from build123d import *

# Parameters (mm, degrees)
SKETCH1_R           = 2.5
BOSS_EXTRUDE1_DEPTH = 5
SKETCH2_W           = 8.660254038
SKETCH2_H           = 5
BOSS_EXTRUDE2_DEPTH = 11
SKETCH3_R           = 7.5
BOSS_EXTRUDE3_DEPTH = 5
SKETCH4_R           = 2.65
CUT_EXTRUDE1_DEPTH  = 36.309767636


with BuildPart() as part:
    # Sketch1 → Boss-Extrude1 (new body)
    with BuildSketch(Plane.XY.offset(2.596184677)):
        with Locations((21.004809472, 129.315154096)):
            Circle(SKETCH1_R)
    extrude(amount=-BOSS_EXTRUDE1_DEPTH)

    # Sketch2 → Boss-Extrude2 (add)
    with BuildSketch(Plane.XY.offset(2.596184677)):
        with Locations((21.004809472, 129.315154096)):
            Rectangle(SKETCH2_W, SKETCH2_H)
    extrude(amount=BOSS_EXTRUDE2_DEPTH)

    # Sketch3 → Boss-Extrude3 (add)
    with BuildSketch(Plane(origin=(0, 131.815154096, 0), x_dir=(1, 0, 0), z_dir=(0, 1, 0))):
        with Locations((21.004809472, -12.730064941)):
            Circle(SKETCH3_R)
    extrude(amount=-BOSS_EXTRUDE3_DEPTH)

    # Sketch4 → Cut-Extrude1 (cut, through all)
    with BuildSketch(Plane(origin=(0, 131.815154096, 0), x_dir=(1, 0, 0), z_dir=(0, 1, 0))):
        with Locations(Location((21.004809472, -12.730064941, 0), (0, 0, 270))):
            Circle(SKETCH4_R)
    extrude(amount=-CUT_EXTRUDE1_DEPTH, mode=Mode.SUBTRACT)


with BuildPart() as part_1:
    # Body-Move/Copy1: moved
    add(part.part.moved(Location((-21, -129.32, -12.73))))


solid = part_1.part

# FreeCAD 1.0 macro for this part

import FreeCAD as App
import Part
import Sketcher
from FreeCAD import Vector
Q = App.Units.Quantity


def add_polygon(sketch, points):
    """Adds a closed chain of lines whose ends are joined by coincident constraints."""
    first, n = sketch.GeometryCount, len(points)
    for a, b in zip(points, points[1:] + points[:1]):
        sketch.addGeometry(Part.LineSegment(App.Vector(*a, 0), App.Vector(*b, 0)), False)
    for i in range(n):
        sketch.addConstraint(Sketcher.Constraint("Coincident", first + i, 2, first + (i + 1) % n, 1))

doc = App.newDocument("Part")
body = doc.addObject("PartDesign::Body", "Body")

# Sketch on XY plane
sketch1 = body.newObject("Sketcher::SketchObject", "Sketch")
sketch1.AttachmentSupport = (doc.getObject("XY_Plane"), [""])
sketch1.MapMode = "FlatFace"
sketch1.AttachmentOffset = App.Placement(Vector(0, 0, 2.596185), App.Rotation())
sketch1.addGeometry(Part.Circle(Vector(21, 129.3, 0), Vector(0, 0, 1), 2.5), False)
sketch1.addConstraint([
    Sketcher.Constraint("Diameter", 0, Q("5 mm")),
    Sketcher.Constraint("DistanceX", -1, 1, 0, 3, Q("21.004809 mm")),
    Sketcher.Constraint("DistanceY", -1, 1, 0, 3, Q("129.315154 mm")),
])
pad1 = body.newObject("PartDesign::Pad", "Pad")
pad1.Profile = sketch1
pad1.Length = 5
pad1.Reversed = True

# Sketch on XY plane
sketch2 = body.newObject("Sketcher::SketchObject", "Sketch001")
sketch2.AttachmentSupport = (doc.getObject("XY_Plane"), [""])
sketch2.MapMode = "FlatFace"
sketch2.AttachmentOffset = App.Placement(Vector(0, 0, 2.596185), App.Rotation())
add_polygon(sketch2, [(16.7, 131.8), (16.7, 126.8), (25.3, 126.8), (25.3, 131.8)])  # lines 0-3
sketch2.addConstraint([
    Sketcher.Constraint("Vertical", 0),
    Sketcher.Constraint("Horizontal", 1),
    Sketcher.Constraint("Vertical", 2),
    Sketcher.Constraint("Horizontal", 3),
    Sketcher.Constraint("DistanceY", 0, 2, 0, 1, Q("5 mm")),
    Sketcher.Constraint("DistanceX", 1, 1, 1, 2, Q("8.660254 mm")),
    Sketcher.Constraint("DistanceX", -1, 1, 0, 2, Q("16.674682 mm")),
    Sketcher.Constraint("DistanceY", -1, 1, 0, 2, Q("126.815154 mm")),
])
pad2 = body.newObject("PartDesign::Pad", "Pad001")
pad2.Profile = sketch2
pad2.Length = 11

# Sketch on XZ plane
sketch3 = body.newObject("Sketcher::SketchObject", "Sketch002")
sketch3.AttachmentSupport = (doc.getObject("XZ_Plane"), [""])
sketch3.MapMode = "FlatFace"
sketch3.AttachmentOffset = App.Placement(Vector(0, 0, -131.815154), App.Rotation())
sketch3.addGeometry(Part.Circle(Vector(21, 13, 0), Vector(0, 0, 1), 8), False)
sketch3.addConstraint([
    Sketcher.Constraint("Diameter", 0, Q("15 mm")),
    Sketcher.Constraint("DistanceX", -1, 1, 0, 3, Q("21.004809 mm")),
    Sketcher.Constraint("DistanceY", -1, 1, 0, 3, Q("12.730065 mm")),
])
pad3 = body.newObject("PartDesign::Pad", "Pad002")
pad3.Profile = sketch3
pad3.Length = 5

# Sketch on XZ plane
sketch4 = body.newObject("Sketcher::SketchObject", "Sketch003")
sketch4.AttachmentSupport = (doc.getObject("XZ_Plane"), [""])
sketch4.MapMode = "FlatFace"
sketch4.AttachmentOffset = App.Placement(Vector(0, 0, -131.815154), App.Rotation())
sketch4.addGeometry(Part.Circle(Vector(21, 12.7, 0), Vector(0, 0, 1), 2.6), False)
sketch4.addConstraint([
    Sketcher.Constraint("Diameter", 0, Q("5.3 mm")),
    Sketcher.Constraint("DistanceX", -1, 1, 0, 3, Q("21.004809 mm")),
    Sketcher.Constraint("DistanceY", -1, 1, 0, 3, Q("12.730065 mm")),
])
pocket1 = body.newObject("PartDesign::Pocket", "Pocket")
pocket1.Profile = sketch4
pocket1.Type = "ThroughAll"
pocket1.Reversed = True
body2 = doc.addObject("PartDesign::Body", "Body001")
doc.recompute()

body.Placement = App.Placement(Vector(-21, -129.32, -12.73), App.Rotation(Vector(0, 0, 1), 0))
boolean = body2.newObject("PartDesign::Boolean", "Boolean")
boolean.Type = "Fuse"
boolean.addObjects([body])

doc.recompute()
